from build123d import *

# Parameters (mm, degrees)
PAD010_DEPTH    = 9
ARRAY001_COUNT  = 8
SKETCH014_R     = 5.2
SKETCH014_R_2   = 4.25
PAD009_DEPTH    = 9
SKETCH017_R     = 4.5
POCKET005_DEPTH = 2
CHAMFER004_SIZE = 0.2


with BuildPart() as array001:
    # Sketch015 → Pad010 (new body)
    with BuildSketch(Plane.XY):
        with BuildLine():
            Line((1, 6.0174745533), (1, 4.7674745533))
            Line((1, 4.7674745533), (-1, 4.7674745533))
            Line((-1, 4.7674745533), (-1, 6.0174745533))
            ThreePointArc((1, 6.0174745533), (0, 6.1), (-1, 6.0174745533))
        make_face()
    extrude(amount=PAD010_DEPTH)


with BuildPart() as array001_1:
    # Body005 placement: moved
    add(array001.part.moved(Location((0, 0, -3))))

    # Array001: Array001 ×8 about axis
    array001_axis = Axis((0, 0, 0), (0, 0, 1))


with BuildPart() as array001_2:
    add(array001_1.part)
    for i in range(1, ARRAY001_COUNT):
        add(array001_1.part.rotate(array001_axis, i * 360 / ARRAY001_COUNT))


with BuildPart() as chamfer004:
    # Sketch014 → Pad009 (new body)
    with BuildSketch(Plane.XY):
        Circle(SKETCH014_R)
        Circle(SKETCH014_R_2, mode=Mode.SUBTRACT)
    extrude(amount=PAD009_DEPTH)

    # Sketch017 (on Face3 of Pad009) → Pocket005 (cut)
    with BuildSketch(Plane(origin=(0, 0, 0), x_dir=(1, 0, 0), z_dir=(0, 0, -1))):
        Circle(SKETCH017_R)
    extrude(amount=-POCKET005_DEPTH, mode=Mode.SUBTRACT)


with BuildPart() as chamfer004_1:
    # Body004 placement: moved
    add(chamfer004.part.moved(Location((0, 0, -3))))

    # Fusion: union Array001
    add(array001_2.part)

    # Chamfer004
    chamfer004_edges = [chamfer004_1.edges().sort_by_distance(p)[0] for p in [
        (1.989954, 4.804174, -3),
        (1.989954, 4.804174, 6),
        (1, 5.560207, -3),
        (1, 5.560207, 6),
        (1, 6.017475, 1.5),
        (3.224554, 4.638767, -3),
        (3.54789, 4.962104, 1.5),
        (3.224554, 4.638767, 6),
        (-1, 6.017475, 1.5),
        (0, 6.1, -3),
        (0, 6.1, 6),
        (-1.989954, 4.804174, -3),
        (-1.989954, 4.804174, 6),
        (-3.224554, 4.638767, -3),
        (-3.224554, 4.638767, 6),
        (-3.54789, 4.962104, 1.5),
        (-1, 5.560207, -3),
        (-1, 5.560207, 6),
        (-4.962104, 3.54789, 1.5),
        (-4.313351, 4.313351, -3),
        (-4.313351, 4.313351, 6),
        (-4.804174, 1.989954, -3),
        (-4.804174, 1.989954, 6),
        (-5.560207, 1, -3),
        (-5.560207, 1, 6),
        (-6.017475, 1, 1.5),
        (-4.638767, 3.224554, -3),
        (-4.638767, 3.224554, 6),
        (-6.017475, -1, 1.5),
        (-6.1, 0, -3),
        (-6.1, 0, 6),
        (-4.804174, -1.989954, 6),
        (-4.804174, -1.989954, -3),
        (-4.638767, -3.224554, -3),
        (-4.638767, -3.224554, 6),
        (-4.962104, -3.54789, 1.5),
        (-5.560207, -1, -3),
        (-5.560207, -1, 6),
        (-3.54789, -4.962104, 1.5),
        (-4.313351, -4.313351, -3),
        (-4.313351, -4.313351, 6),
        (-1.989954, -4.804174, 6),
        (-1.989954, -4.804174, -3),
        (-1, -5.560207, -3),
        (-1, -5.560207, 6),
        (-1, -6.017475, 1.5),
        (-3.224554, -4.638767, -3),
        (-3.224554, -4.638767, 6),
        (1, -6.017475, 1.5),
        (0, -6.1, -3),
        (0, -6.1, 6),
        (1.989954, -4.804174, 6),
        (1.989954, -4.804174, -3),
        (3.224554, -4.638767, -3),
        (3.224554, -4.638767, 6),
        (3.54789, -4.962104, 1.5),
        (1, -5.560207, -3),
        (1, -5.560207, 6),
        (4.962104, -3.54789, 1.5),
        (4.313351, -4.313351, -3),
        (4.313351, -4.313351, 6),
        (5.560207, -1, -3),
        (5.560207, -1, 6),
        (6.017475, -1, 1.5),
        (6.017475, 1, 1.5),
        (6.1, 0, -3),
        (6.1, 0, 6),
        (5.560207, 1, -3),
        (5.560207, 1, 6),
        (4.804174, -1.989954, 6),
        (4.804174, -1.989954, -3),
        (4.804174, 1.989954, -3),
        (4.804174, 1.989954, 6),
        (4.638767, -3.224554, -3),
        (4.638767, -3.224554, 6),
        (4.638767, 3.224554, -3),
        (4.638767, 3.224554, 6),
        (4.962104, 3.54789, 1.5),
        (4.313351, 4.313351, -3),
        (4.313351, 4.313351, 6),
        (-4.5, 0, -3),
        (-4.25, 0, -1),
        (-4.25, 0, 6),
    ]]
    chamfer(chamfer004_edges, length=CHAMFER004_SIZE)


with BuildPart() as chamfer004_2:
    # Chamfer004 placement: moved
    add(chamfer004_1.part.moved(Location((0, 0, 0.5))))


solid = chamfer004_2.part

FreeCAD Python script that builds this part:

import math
import FreeCAD as App
import Part
import Sketcher

V = App.Vector


def edges_at(feature, points):
    """Names of the edges that pass closest to the given points."""
    edges = feature.Shape.Edges
    near = lambda p: min(range(len(edges)), key=lambda i: edges[i].distToShape(Part.Vertex(*p))[0])
    return sorted({f"Edge{near(p) + 1}" for p in points})

doc = App.newDocument("Part")
body = doc.addObject("PartDesign::Body", "Body")

sketch1 = body.newObject("Sketcher::SketchObject", "Sketch")
sketch1.AttachmentSupport = (doc.getObject("XY_Plane"), [""])
sketch1.MapMode = "FlatFace"
sketch1.addGeometry([
    Part.LineSegment(V(1, 4.8, 0), V(1, 6, 0)),
    Part.ArcOfCircle(Part.Circle(V(0, 0, 0), V(0, 0, 1), 6.1), math.radians(80.56), math.radians(99.44)),
    Part.LineSegment(V(-1, 6, 0), V(-1, 4.8, 0)),
    Part.LineSegment(V(-1, 4.8, 0), V(1, 4.8, 0)),
], False)
sketch1.addConstraint([
    Sketcher.Constraint("Coincident", 0, 2, 1, 1),
    Sketcher.Constraint("Coincident", 1, 2, 2, 1),
    Sketcher.Constraint("Coincident", 2, 2, 3, 1),
    Sketcher.Constraint("Coincident", 3, 2, 0, 1),
    Sketcher.Constraint("Vertical", 0),
    Sketcher.Constraint("Vertical", 2),
    Sketcher.Constraint("Horizontal", 3),
    Sketcher.Constraint("Coincident", 1, 3, -1, 1),
    Sketcher.Constraint("Horizontal", 0, 2, 1, 2),
    Sketcher.Constraint("Radius", 1, 6.1),
    Sketcher.Constraint("DistanceX", 3, 1, 3, 2, 2.0),
    Sketcher.Constraint("DistanceY", 0, 1, 0, 2, 1.25),
])
pad1 = body.newObject("PartDesign::Pad", "Pad")
pad1.Profile = sketch1
pad1.Length = 9
body2 = doc.addObject("PartDesign::Body", "Body001")
doc.recompute()

body.Placement = App.Placement(V(0, 0, -3), App.Rotation(V(0, 0, 1), 0))
boolean = body2.newObject("PartDesign::Boolean", "Boolean")
boolean.Type = "Fuse"
boolean.addObjects([body])
body3 = doc.addObject("PartDesign::Body", "Body002")
body3.AllowCompound = True
doc.recompute()

body3.BaseFeature = body2
doc.recompute()

body4 = doc.addObject("PartDesign::Body", "Body003")
body4.BaseFeature = body2
body4.Placement = App.Placement(V(0, 0, 0), App.Rotation(V(0, 0, 1), 45))
boolean2 = body3.newObject("PartDesign::Boolean", "Boolean001")
boolean2.Type = "Fuse"
boolean2.addObjects([body4])
doc.recompute()

body5 = doc.addObject("PartDesign::Body", "Body004")
body5.BaseFeature = body2
body5.Placement = App.Placement(V(0, 0, 0), App.Rotation(V(0, 0, 1), 90))
boolean3 = body3.newObject("PartDesign::Boolean", "Boolean002")
boolean3.Type = "Fuse"
boolean3.addObjects([body5])
doc.recompute()

body6 = doc.addObject("PartDesign::Body", "Body005")
body6.BaseFeature = body2
body6.Placement = App.Placement(V(0, 0, 0), App.Rotation(V(0, 0, 1), 135))
boolean4 = body3.newObject("PartDesign::Boolean", "Boolean003")
boolean4.Type = "Fuse"
boolean4.addObjects([body6])
doc.recompute()

body7 = doc.addObject("PartDesign::Body", "Body006")
body7.BaseFeature = body2
body7.Placement = App.Placement(V(0, 0, 0), App.Rotation(V(0, 0, 1), 180))
boolean5 = body3.newObject("PartDesign::Boolean", "Boolean004")
boolean5.Type = "Fuse"
boolean5.addObjects([body7])
doc.recompute()

body8 = doc.addObject("PartDesign::Body", "Body007")
body8.BaseFeature = body2
body8.Placement = App.Placement(V(0, 0, 0), App.Rotation(V(0, 0, 1), 225))
boolean6 = body3.newObject("PartDesign::Boolean", "Boolean005")
boolean6.Type = "Fuse"
boolean6.addObjects([body8])
doc.recompute()

body9 = doc.addObject("PartDesign::Body", "Body008")
body9.BaseFeature = body2
body9.Placement = App.Placement(V(0, 0, 0), App.Rotation(V(0, 0, 1), 270))
boolean7 = body3.newObject("PartDesign::Boolean", "Boolean006")
boolean7.Type = "Fuse"
boolean7.addObjects([body9])
doc.recompute()

body2.Placement = App.Placement(V(0, 0, 0), App.Rotation(V(0, 0, 1), 315))
boolean8 = body3.newObject("PartDesign::Boolean", "Boolean007")
boolean8.Type = "Fuse"
boolean8.addObjects([body2])
body10 = doc.addObject("PartDesign::Body", "Body009")

sketch2 = body10.newObject("Sketcher::SketchObject", "Sketch001")
sketch2.AttachmentSupport = (doc.getObject("XY_Plane009"), [""])
sketch2.MapMode = "FlatFace"
sketch2.addGeometry([
    Part.Circle(V(0, 0, 0), V(0, 0, 1), 5.2),
    Part.Circle(V(0, 0, 0), V(0, 0, 1), 4.2),
], False)
sketch2.addConstraint([
    Sketcher.Constraint("Coincident", 0, 3, -1, 1),
    Sketcher.Constraint("Coincident", 1, 3, -1, 1),
    Sketcher.Constraint("Diameter", 0, 10.4),
    Sketcher.Constraint("Diameter", 1, 8.5),
])
pad2 = body10.newObject("PartDesign::Pad", "Pad001")
pad2.Profile = sketch2
pad2.Length = 9

sketch3 = body10.newObject("Sketcher::SketchObject", "Sketch002")
sketch3.AttachmentSupport = (doc.getObject("XY_Plane009"), [""])
sketch3.MapMode = "FlatFace"
sketch3.addGeometry(Part.Circle(V(0, 0, 0), V(0, 0, 1), 4.5), False)
sketch3.addConstraint([
    Sketcher.Constraint("Coincident", 0, 3, -1, 1),
    Sketcher.Constraint("Diameter", 0, 9.0),
])
pocket1 = body10.newObject("PartDesign::Pocket", "Pocket")
pocket1.Profile = sketch3
pocket1.Length = 2
pocket1.Reversed = True
body11 = doc.addObject("PartDesign::Body", "Body010")
doc.recompute()

body10.Placement = App.Placement(V(0, 0, -3), App.Rotation(V(0, 0, 1), 0))
boolean9 = body11.newObject("PartDesign::Boolean", "Boolean008")
boolean9.Type = "Fuse"
boolean9.addObjects([body10])
doc.recompute()

boolean10 = body11.newObject("PartDesign::Boolean", "Boolean009")
boolean10.Type = "Fuse"
boolean10.addObjects([body3])
doc.recompute()

chamfer = body11.newObject("PartDesign::Chamfer", "Chamfer")
chamfer.Base = (boolean10, edges_at(boolean10, [
    (1.99, 4.804, -3),
    (1.99, 4.804, 6),
    (1, 5.56, -3),
    (1, 5.56, 6),
    (1, 6.017, 1.5),
    (3.225, 4.639, -3),
    (3.548, 4.962, 1.5),
    (3.225, 4.639, 6),
    (-1, 6.017, 1.5),
    (0, 6.1, -3),
    (0, 6.1, 6),
    (-1.99, 4.804, -3),
    (-1.99, 4.804, 6),
    (-3.225, 4.639, -3),
    (-3.225, 4.639, 6),
    (-3.548, 4.962, 1.5),
    (-1, 5.56, -3),
    (-1, 5.56, 6),
    (-4.962, 3.548, 1.5),
    (-4.313, 4.313, -3),
    (-4.313, 4.313, 6),
    (-4.804, 1.99, -3),
    (-4.804, 1.99, 6),
    (-5.56, 1, -3),
    (-5.56, 1, 6),
    (-6.017, 1, 1.5),
    (-4.639, 3.225, -3),
    (-4.639, 3.225, 6),
    (-6.017, -1, 1.5),
    (-6.1, 0, -3),
    (-6.1, 0, 6),
    (-4.804, -1.99, 6),
    (-4.804, -1.99, -3),
    (-4.639, -3.225, -3),
    (-4.639, -3.225, 6),
    (-4.962, -3.548, 1.5),
    (-5.56, -1, -3),
    (-5.56, -1, 6),
    (-3.548, -4.962, 1.5),
    (-4.313, -4.313, -3),
    (-4.313, -4.313, 6),
    (-1.99, -4.804, 6),
    (-1.99, -4.804, -3),
    (-1, -5.56, -3),
    (-1, -5.56, 6),
    (-1, -6.017, 1.5),
    (-3.225, -4.639, -3),
    (-3.225, -4.639, 6),
    (1, -6.017, 1.5),
    (0, -6.1, -3),
    (0, -6.1, 6),
    (1.99, -4.804, 6),
    (1.99, -4.804, -3),
    (3.225, -4.639, -3),
    (3.225, -4.639, 6),
    (3.548, -4.962, 1.5),
    (1, -5.56, -3),
    (1, -5.56, 6),
    (4.962, -3.548, 1.5),
    (4.313, -4.313, -3),
    (4.313, -4.313, 6),
    (5.56, -1, -3),
    (5.56, -1, 6),
    (6.017, -1, 1.5),
    (6.017, 1, 1.5),
    (6.1, 0, -3),
    (6.1, 0, 6),
    (5.56, 1, -3),
    (5.56, 1, 6),
    (4.804, -1.99, 6),
    (4.804, -1.99, -3),
    (4.804, 1.99, -3),
    (4.804, 1.99, 6),
    (4.639, -3.225, -3),
    (4.639, -3.225, 6),
    (4.639, 3.225, -3),
    (4.639, 3.225, 6),
    (4.962, 3.548, 1.5),
    (4.313, 4.313, -3),
    (4.313, 4.313, 6),
    (-4.5, 0, -3),
    (-4.25, 0, -1),
    (-4.25, 0, 6),
]))
chamfer.Size = 0.2
body12 = doc.addObject("PartDesign::Body", "Body011")
doc.recompute()

body11.Placement = App.Placement(V(0, 0, 0.5), App.Rotation(V(0, 0, 1), 0))
boolean11 = body12.newObject("PartDesign::Boolean", "Boolean010")
boolean11.Type = "Fuse"
boolean11.addObjects([body11])

doc.recompute()
